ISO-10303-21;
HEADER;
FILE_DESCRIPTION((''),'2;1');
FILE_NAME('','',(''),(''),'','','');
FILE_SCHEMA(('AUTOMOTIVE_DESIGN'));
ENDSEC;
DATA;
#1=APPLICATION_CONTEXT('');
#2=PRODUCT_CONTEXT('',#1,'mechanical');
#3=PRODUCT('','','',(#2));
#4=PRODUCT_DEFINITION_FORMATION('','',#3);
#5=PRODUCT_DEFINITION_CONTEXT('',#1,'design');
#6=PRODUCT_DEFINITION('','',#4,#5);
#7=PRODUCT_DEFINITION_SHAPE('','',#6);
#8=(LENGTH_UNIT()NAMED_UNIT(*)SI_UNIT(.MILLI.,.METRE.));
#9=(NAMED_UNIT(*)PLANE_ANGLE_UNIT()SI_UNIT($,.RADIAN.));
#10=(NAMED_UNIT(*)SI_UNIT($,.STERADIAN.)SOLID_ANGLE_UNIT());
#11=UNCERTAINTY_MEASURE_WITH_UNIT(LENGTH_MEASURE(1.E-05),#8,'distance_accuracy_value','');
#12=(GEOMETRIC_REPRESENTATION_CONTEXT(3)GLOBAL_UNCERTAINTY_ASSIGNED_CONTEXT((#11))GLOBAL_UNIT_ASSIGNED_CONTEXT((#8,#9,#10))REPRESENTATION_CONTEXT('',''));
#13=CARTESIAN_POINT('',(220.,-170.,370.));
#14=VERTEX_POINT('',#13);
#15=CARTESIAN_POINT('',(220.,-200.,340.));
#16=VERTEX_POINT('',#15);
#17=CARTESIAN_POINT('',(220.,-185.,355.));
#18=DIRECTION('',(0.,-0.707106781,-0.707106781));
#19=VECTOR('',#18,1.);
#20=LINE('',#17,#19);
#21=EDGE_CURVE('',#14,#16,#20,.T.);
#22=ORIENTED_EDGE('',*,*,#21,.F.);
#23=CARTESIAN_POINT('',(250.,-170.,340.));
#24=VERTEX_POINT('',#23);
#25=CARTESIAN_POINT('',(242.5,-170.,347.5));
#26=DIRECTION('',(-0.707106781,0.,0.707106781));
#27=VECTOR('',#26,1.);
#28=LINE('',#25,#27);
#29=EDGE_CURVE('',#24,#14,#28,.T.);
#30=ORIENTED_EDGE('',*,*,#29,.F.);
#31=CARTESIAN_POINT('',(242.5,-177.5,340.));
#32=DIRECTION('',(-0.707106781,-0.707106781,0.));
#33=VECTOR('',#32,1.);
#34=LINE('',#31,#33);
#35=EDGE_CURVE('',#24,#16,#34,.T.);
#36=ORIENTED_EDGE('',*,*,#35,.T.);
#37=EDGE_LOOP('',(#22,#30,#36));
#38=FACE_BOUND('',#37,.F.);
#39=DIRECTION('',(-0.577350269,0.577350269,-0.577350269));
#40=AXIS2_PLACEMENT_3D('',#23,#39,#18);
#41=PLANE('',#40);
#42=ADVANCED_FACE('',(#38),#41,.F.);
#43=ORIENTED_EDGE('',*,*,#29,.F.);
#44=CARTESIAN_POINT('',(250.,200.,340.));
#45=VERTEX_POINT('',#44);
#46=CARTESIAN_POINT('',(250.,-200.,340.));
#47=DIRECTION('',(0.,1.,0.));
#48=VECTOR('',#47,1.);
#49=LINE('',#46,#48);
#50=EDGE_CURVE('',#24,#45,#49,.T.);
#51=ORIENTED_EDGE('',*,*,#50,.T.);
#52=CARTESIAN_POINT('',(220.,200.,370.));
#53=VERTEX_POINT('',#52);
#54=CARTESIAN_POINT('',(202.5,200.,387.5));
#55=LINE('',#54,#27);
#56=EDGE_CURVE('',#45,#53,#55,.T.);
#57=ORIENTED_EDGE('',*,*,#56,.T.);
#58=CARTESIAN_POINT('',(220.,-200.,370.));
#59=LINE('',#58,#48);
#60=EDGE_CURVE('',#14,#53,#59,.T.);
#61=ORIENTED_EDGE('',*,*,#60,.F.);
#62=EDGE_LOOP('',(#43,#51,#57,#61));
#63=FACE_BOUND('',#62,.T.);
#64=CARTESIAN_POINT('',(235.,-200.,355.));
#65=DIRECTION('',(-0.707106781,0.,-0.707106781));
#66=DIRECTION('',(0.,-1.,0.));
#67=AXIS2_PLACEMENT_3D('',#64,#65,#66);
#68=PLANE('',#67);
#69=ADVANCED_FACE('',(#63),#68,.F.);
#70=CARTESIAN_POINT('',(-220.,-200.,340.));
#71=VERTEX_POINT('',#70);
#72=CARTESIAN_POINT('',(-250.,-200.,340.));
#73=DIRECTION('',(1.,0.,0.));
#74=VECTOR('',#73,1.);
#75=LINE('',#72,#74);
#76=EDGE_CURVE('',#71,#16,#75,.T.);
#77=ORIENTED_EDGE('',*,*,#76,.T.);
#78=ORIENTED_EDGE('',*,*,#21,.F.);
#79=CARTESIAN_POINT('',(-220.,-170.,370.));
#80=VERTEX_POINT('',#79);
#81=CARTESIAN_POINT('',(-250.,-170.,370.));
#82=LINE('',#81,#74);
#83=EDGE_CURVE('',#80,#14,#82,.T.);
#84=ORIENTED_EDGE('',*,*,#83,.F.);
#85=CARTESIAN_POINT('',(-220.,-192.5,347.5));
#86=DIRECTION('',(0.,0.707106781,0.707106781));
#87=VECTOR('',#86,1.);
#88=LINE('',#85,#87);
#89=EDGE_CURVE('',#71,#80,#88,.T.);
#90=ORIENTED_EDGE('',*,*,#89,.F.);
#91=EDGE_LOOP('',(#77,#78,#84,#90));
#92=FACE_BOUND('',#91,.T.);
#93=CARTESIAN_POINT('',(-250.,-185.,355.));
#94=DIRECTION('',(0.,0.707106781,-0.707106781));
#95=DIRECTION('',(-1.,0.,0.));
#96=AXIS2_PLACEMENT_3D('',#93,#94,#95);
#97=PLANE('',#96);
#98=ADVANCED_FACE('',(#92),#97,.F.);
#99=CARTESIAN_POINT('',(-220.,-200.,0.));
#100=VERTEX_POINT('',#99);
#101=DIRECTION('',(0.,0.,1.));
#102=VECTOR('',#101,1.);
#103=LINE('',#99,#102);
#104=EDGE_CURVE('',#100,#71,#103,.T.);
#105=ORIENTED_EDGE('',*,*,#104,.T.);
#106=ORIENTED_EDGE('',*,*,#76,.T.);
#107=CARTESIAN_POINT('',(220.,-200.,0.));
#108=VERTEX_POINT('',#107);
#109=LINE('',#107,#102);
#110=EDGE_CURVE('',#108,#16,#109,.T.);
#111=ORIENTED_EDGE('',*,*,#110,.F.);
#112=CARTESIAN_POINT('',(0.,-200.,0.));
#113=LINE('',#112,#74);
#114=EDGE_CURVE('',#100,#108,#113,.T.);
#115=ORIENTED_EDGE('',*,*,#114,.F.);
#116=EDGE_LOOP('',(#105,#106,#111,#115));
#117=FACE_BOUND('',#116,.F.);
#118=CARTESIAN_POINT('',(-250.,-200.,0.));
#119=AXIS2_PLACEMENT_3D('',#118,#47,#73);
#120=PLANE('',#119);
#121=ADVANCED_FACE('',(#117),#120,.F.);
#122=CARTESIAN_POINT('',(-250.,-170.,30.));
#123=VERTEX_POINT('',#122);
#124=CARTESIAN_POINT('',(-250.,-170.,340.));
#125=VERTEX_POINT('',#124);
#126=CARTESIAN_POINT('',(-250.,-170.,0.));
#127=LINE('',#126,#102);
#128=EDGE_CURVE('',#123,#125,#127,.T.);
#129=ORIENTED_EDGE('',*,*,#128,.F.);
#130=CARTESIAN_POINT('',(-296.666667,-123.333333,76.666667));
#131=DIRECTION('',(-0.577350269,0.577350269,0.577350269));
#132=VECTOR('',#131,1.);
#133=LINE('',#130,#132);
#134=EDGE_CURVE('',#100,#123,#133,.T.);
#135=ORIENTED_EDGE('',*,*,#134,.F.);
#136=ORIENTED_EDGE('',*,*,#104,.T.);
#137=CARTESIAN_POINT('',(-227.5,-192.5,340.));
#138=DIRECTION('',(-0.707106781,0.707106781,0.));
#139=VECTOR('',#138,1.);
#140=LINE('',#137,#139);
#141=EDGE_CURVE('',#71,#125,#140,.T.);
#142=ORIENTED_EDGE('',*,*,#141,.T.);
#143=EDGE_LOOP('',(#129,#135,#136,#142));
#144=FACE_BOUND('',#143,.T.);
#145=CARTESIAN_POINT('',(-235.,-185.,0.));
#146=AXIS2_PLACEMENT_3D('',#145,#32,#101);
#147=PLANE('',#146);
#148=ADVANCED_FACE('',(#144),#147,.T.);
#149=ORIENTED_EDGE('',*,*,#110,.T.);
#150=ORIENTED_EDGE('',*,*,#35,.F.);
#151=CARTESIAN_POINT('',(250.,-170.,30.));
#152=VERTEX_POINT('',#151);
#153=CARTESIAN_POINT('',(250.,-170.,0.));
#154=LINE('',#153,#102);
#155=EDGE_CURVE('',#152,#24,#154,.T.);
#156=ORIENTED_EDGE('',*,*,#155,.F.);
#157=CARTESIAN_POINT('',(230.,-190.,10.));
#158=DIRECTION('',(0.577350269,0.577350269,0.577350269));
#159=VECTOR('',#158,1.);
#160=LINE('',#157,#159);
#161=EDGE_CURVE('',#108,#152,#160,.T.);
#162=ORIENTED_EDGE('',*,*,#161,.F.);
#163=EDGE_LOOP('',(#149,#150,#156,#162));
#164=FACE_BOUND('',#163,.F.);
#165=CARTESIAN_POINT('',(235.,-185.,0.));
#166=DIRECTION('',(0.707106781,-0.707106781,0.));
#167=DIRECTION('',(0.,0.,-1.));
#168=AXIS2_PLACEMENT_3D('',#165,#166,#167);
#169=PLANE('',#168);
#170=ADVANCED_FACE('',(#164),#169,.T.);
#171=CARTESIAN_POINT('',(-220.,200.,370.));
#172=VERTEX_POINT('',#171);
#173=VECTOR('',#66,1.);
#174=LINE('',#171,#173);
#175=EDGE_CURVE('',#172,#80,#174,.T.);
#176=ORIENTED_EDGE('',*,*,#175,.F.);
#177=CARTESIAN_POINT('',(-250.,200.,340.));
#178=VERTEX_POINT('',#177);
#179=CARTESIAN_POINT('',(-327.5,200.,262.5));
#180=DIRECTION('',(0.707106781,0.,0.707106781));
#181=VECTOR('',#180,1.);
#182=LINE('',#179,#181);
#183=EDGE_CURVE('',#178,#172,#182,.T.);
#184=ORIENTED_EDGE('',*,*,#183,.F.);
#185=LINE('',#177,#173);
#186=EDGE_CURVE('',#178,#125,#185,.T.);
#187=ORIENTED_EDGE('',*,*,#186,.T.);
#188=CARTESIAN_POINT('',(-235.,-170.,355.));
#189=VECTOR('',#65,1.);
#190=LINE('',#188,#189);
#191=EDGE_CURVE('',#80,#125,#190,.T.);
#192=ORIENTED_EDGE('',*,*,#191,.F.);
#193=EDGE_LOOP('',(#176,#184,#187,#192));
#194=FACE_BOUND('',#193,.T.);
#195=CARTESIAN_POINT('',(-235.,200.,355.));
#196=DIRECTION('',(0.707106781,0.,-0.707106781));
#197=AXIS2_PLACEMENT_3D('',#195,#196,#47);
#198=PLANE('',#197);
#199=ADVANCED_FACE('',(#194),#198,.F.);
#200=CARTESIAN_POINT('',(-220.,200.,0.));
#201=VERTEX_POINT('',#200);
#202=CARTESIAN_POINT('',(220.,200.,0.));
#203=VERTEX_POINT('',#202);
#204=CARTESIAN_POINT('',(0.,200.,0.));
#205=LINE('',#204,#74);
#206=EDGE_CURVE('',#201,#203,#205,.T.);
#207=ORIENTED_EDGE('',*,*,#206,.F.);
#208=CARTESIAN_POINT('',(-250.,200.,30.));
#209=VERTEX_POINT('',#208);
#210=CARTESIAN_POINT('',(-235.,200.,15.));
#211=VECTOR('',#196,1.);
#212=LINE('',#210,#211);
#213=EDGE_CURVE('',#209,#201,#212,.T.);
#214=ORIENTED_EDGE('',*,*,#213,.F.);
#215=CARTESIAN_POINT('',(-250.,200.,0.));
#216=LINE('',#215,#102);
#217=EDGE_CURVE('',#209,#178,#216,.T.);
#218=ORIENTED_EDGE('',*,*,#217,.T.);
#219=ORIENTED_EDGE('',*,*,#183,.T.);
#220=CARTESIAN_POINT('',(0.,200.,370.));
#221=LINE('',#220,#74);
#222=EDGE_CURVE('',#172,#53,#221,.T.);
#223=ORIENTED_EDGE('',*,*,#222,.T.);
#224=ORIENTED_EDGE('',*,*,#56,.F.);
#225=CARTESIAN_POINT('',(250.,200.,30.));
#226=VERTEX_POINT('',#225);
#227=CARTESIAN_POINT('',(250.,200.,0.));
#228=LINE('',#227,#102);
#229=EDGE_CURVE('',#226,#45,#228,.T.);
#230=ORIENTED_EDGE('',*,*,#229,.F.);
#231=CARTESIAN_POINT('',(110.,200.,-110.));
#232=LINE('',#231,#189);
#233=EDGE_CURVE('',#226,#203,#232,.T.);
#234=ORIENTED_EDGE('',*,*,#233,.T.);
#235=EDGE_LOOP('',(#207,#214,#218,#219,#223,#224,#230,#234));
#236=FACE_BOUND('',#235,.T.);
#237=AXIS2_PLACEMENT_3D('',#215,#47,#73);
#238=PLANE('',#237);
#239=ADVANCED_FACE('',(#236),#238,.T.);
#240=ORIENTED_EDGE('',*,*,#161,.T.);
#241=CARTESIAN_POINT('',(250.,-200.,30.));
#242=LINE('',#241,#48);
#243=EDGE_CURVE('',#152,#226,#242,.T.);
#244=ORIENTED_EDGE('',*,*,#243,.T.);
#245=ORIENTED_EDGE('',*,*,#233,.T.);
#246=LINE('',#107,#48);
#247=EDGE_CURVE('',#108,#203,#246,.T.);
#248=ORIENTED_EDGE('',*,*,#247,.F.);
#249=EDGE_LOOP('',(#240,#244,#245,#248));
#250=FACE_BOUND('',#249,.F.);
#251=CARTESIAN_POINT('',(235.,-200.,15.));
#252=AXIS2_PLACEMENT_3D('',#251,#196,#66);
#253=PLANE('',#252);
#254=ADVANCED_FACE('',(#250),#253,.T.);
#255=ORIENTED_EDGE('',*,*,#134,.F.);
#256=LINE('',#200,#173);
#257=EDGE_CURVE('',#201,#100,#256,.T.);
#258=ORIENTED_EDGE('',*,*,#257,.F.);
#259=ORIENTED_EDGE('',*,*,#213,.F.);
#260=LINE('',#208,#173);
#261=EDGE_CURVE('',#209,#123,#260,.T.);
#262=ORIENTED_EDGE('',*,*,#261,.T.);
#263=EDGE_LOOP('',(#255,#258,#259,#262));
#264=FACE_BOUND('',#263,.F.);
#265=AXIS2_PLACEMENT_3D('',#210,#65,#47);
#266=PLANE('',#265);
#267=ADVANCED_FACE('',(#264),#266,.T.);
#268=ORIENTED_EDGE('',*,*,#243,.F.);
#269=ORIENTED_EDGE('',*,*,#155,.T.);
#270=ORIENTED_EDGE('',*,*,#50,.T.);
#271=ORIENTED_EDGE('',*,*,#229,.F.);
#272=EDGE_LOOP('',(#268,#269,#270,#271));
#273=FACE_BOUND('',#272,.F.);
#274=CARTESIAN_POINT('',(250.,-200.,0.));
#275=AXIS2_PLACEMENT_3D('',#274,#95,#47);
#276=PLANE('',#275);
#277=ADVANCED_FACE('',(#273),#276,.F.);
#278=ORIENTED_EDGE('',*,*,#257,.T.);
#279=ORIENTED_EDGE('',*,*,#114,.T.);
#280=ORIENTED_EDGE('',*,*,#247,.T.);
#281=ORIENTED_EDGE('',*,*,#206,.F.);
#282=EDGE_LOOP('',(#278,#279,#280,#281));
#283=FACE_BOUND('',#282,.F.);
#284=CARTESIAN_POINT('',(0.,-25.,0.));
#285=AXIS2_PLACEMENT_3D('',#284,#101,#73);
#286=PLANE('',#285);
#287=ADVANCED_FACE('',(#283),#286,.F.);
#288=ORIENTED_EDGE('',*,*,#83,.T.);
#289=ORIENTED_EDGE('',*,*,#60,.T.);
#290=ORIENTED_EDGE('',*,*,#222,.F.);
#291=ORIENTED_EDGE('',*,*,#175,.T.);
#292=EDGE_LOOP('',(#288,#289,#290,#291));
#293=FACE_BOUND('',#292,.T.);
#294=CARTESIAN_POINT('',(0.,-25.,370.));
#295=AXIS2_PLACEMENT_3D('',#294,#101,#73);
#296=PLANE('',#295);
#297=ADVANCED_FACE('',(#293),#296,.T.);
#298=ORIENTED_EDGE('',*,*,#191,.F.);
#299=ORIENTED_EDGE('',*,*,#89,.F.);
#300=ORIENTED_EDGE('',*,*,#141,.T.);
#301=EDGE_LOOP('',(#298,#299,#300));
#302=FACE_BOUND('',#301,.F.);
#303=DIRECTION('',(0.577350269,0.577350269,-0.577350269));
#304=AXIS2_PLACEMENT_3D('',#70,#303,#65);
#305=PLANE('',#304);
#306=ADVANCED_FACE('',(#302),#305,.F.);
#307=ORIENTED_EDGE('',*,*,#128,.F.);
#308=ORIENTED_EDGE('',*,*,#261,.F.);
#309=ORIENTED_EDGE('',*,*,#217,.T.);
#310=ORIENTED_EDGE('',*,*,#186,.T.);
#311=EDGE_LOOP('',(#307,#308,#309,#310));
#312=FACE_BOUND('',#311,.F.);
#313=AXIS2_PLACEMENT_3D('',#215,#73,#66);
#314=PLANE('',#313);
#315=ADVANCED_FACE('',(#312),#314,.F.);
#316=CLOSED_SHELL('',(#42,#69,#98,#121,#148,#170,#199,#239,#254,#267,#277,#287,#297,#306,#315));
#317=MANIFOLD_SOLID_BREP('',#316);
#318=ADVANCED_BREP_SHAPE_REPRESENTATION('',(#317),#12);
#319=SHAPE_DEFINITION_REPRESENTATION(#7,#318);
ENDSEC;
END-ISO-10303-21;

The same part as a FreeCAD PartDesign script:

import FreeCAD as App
import Part
import Sketcher

V = App.Vector


def edges_at(feature, points):
    """Names of the edges that pass closest to the given points."""
    edges = feature.Shape.Edges
    near = lambda p: min(range(len(edges)), key=lambda i: edges[i].distToShape(Part.Vertex(*p))[0])
    return sorted({f"Edge{near(p) + 1}" for p in points})


def add_polygon(sketch, points):
    """Adds a closed chain of lines whose ends are joined by coincident constraints."""
    first, n = sketch.GeometryCount, len(points)
    for a, b in zip(points, points[1:] + points[:1]):
        sketch.addGeometry(Part.LineSegment(App.Vector(*a, 0), App.Vector(*b, 0)), False)
    for i in range(n):
        sketch.addConstraint(Sketcher.Constraint("Coincident", first + i, 2, first + (i + 1) % n, 1))

doc = App.newDocument("Part")
params = doc.addObject("Spreadsheet::Sheet", "Params")
for row, (alias, value) in enumerate([
    ("sketch1_width", "500 mm"),
    ("sketch1_height", "400 mm"),
    ("pad1_length", "370 mm"),
    ("chamfer_size", "30 mm"),
], start=1):
    params.set(f"A{row}", alias)
    params.set(f"B{row}", "=" + value)
    params.setAlias(f"B{row}", alias)

body = doc.addObject("PartDesign::Body", "Body")

# Sketch on XY plane
sketch1 = doc.addObject("Sketcher::SketchObject", "Sketch")
body.addObject(sketch1)
sketch1.AttachmentSupport = (doc.XY_Plane, [""])
sketch1.MapMode = "FlatFace"
add_polygon(sketch1, [(-250, -200), (250, -200), (250, 200), (-250, 200)])  # lines 0-3
sketch1.addConstraint([
    Sketcher.Constraint("Horizontal", 0),
    Sketcher.Constraint("Vertical", 1),
    Sketcher.Constraint("Horizontal", 2),
    Sketcher.Constraint("Vertical", 3),
    Sketcher.Constraint("Symmetric", 0, 2, 2, 2, -1, 1),
    Sketcher.Constraint("DistanceX", 0, 1, 0, 2, 500.0),
    Sketcher.Constraint("DistanceY", 1, 1, 1, 2, 400.0),
])
sketch1.setExpression("Constraints[9]", "Params.sketch1_width")
sketch1.setExpression("Constraints[10]", "Params.sketch1_height")
pad1 = doc.addObject("PartDesign::Pad", "Pad")
body.addObject(pad1)
pad1.Profile = sketch1
pad1.setExpression("Length", "Params.pad1_length")
doc.recompute()

chamfer = doc.addObject("PartDesign::Chamfer", "Chamfer")
body.addObject(chamfer)
chamfer.Base = (pad1, edges_at(pad1, [
    (-250, 0, 370),
    (0, -200, 370),
    (250, 0, 370),
    (-250, -200, 185),
    (250, -200, 185),
    (250, 0, 0),
    (-250, 0, 0),
]))
chamfer.setExpression("Size", "Params.chamfer_size")

doc.recompute()
